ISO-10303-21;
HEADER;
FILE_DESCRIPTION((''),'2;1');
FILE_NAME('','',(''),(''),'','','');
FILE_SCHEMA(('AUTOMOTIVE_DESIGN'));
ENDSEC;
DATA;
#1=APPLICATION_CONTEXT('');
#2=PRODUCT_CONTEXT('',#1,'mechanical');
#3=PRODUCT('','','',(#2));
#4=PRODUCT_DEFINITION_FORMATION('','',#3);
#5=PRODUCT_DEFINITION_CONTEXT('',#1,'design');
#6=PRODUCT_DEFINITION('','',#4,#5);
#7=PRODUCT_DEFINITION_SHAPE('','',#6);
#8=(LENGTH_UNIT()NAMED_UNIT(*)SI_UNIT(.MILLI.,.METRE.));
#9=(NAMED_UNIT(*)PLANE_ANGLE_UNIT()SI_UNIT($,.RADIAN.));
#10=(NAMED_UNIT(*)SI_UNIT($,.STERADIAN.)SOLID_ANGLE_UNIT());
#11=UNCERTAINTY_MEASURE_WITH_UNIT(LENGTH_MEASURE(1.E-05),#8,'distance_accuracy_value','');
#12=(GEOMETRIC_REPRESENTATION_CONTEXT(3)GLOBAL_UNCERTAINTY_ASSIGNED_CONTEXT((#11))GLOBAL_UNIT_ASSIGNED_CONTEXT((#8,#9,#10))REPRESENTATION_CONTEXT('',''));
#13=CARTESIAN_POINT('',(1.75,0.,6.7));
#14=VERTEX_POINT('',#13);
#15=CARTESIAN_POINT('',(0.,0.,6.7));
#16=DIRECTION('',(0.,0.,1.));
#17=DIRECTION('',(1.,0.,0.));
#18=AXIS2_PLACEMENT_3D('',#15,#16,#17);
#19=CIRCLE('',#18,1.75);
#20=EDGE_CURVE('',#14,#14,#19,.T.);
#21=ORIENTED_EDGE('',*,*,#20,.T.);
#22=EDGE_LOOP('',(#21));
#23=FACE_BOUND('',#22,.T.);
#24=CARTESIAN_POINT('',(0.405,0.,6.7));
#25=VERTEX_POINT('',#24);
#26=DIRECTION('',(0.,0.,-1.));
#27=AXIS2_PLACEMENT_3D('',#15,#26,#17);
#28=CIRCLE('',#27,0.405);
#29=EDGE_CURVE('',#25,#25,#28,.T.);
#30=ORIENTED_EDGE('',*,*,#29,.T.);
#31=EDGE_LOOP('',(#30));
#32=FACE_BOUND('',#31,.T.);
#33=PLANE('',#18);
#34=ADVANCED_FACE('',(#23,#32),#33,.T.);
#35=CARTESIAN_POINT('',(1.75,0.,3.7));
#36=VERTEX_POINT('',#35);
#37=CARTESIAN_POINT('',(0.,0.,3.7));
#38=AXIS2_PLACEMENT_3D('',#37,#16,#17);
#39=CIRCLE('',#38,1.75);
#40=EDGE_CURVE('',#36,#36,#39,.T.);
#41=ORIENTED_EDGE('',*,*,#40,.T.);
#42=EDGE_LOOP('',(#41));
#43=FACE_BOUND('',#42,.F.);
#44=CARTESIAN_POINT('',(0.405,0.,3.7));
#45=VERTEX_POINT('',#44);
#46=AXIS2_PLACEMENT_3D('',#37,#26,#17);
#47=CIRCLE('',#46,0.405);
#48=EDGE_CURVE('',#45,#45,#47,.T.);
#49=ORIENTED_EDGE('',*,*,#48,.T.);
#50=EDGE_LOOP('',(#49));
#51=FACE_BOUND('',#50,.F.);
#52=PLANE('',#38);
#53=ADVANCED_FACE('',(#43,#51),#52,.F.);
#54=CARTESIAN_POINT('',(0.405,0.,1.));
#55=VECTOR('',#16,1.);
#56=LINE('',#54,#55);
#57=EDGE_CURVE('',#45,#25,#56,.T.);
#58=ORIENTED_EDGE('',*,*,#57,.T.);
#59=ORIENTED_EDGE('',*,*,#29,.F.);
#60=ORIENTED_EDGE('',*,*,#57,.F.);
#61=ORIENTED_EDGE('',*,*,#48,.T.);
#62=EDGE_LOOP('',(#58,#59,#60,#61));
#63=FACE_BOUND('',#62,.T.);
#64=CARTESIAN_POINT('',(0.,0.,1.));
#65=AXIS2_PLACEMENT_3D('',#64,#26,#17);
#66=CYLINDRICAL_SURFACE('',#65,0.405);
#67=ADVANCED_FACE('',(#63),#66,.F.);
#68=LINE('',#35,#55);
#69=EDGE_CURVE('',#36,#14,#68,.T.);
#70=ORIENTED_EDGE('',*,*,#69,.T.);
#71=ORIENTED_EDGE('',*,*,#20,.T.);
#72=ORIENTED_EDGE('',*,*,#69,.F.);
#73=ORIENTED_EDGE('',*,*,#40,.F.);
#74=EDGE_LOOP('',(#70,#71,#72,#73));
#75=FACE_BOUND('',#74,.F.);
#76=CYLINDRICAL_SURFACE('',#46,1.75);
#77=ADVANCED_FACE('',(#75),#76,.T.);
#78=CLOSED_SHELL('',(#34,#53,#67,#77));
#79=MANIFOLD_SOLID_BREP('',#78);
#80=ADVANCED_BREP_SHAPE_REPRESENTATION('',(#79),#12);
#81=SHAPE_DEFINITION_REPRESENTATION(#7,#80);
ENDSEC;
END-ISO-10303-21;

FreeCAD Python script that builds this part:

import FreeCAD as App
import Part
import Sketcher
from FreeCAD import Vector
Q = App.Units.Quantity

doc = App.newDocument("Part")
params = doc.addObject("Spreadsheet::Sheet", "Params")
for row, (alias, value) in enumerate([
    ("sketch1_diameter", "0.81 mm"),
    ("pad1_length", "17 mm"),
    ("sketch2_diameter", "3.5 mm"),
    ("pad2_length", "3 mm"),
], start=1):
    params.set(f"A{row}", alias)
    params.set(f"B{row}", "=" + value)
    params.setAlias(f"B{row}", alias)

body = doc.addObject("PartDesign::Body", "Body")

# Sketch on XY plane
sketch1 = body.newObject("Sketcher::SketchObject", "Sketch")
sketch1.AttachmentSupport = (doc.getObject("XY_Plane"), [""])
sketch1.MapMode = "FlatFace"
sketch1.addGeometry(Part.Circle(Vector(0, 0, 0), Vector(0, 0, 1), 0.41), False)
sketch1.addConstraint(Sketcher.Constraint("Coincident", 0, 3, -1, 1))
sketch1.addConstraint(Sketcher.Constraint("Diameter", 0, Q("0.81 mm")))
sketch1.setExpression("Constraints[1]", "Params.sketch1_diameter")
pad1 = body.newObject("PartDesign::Pad", "Pad")
pad1.Profile = sketch1
pad1.setExpression("Length", "Params.pad1_length")
body2 = doc.addObject("PartDesign::Body", "Body001")

# Sketch on XY plane
sketch2 = body2.newObject("Sketcher::SketchObject", "Sketch001")
sketch2.AttachmentSupport = (doc.getObject("XY_Plane001"), [""])
sketch2.MapMode = "FlatFace"
sketch2.AttachmentOffset = App.Placement(Vector(0, 0, 2.7), App.Rotation())
sketch2.addGeometry(Part.Circle(Vector(0, 0, 0), Vector(0, 0, 1), 1.8), False)
sketch2.addConstraint(Sketcher.Constraint("Coincident", 0, 3, -1, 1))
sketch2.addConstraint(Sketcher.Constraint("Diameter", 0, Q("3.5 mm")))
sketch2.setExpression("Constraints[1]", "Params.sketch2_diameter")
pad2 = body2.newObject("PartDesign::Pad", "Pad001")
pad2.Profile = sketch2
pad2.setExpression("Length", "Params.pad2_length")
doc.recompute()

boolean = body2.newObject("PartDesign::Boolean", "Boolean")
boolean.Type = "Cut"
boolean.addObjects([body])
body3 = doc.addObject("PartDesign::Body", "Body002")
doc.recompute()

body2.Placement = App.Placement(Vector(0, 0, 1), App.Rotation(Vector(0, 0, 1), 0))
boolean2 = body3.newObject("PartDesign::Boolean", "Boolean001")
boolean2.Type = "Fuse"
boolean2.addObjects([body2])

doc.recompute()
